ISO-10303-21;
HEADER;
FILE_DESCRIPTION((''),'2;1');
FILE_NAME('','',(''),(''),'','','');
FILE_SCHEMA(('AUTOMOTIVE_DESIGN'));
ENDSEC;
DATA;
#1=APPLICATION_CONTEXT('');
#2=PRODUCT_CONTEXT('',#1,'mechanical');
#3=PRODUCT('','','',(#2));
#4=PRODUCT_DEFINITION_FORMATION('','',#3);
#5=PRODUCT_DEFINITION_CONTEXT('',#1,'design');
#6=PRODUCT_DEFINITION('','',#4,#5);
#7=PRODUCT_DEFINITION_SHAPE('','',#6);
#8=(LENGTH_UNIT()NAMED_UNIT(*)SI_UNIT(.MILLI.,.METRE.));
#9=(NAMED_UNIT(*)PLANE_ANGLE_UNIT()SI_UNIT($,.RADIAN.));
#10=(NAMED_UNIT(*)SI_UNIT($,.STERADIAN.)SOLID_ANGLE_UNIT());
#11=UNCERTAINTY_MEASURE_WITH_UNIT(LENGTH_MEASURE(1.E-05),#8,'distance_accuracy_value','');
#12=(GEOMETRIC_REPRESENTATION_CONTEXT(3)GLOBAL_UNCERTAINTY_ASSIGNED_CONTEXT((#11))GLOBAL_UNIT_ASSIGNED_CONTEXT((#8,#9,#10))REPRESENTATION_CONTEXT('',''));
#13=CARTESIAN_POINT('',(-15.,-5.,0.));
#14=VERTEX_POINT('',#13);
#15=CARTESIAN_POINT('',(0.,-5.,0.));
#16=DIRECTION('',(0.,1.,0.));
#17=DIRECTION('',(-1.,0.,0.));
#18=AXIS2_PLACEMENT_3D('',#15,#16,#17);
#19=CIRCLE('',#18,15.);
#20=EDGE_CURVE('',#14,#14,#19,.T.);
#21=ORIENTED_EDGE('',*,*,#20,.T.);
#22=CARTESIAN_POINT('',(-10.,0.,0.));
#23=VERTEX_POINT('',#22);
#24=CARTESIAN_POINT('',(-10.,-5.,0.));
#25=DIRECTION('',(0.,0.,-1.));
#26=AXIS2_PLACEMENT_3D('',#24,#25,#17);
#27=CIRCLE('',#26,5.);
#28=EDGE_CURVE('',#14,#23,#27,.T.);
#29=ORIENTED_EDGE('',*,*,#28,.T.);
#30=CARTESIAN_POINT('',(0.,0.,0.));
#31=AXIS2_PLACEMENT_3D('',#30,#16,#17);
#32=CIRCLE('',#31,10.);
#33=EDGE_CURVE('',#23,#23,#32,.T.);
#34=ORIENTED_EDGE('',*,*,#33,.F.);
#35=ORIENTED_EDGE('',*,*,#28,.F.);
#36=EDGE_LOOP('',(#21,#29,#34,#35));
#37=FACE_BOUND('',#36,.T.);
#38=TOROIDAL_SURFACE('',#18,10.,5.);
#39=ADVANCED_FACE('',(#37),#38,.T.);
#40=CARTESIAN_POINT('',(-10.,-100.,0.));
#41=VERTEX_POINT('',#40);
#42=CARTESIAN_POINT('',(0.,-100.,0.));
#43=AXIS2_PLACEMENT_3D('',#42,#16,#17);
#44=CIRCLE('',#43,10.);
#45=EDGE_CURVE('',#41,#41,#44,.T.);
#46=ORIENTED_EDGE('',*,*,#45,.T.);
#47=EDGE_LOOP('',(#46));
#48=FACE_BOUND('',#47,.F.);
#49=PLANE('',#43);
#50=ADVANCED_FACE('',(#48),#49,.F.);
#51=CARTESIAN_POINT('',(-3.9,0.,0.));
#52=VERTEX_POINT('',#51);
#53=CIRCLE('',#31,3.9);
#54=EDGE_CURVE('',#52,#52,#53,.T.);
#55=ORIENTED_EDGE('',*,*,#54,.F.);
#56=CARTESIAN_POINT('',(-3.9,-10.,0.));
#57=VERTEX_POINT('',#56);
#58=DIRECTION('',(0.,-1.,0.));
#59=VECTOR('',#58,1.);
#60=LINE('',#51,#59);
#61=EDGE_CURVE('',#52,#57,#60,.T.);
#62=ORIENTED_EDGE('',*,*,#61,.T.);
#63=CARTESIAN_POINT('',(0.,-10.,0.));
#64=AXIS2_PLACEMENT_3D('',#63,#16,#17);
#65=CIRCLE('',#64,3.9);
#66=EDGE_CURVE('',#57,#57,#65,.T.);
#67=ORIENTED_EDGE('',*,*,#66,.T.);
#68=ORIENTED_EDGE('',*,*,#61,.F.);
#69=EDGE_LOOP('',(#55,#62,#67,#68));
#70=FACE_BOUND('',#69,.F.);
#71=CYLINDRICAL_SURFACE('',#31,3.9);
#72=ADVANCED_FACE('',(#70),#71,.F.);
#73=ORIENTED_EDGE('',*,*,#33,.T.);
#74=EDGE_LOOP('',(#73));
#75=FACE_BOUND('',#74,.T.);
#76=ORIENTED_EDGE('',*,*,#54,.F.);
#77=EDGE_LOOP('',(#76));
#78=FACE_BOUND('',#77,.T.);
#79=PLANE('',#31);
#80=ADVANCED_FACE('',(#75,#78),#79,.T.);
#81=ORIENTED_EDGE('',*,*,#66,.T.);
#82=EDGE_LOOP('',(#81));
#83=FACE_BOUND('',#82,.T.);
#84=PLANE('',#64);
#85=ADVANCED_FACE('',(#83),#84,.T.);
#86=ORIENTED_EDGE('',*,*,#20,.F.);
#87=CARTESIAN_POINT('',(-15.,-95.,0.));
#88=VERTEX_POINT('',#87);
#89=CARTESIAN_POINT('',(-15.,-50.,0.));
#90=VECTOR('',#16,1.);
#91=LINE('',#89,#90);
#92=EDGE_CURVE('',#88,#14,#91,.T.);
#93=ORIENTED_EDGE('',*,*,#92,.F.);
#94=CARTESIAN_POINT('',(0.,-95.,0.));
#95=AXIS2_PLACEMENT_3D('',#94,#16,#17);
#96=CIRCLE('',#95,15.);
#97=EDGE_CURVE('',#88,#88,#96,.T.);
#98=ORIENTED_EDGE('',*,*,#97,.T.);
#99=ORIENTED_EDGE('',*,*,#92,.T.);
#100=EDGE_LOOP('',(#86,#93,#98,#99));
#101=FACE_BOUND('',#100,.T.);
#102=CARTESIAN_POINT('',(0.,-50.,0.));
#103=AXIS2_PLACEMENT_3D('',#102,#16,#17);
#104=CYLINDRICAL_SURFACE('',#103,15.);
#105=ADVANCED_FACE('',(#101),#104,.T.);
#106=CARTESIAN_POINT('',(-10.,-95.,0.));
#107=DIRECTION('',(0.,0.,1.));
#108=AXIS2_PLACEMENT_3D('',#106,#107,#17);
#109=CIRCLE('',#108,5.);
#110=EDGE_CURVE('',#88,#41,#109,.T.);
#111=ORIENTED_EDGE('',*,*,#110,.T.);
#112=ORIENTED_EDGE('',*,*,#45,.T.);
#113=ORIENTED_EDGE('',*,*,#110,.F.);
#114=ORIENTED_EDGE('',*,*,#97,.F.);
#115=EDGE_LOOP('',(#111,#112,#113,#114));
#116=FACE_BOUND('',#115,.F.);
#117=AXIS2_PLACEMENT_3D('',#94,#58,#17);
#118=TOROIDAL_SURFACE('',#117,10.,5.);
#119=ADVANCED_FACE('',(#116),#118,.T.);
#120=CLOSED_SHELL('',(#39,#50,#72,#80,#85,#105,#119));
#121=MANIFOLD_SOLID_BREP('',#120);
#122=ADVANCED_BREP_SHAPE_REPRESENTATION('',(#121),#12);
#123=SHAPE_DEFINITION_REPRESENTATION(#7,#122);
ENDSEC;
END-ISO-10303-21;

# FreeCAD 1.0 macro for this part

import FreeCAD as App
import Part
import Sketcher
from FreeCAD import Vector


def edges_at(feature, points):
    """Names of the edges that pass closest to the given points."""
    edges = feature.Shape.Edges
    near = lambda p: min(range(len(edges)), key=lambda i: edges[i].distToShape(Part.Vertex(*p))[0])
    return sorted({f"Edge{near(p) + 1}" for p in points})

doc = App.newDocument("Part")
params = doc.addObject("Spreadsheet::Sheet", "Params")
for row, (alias, value) in enumerate([
    ("sketch1_width", "15 mm"),
    ("sketch1_height", "100 mm"),
    ("revolution_angle", "360 deg"),
    ("sketch2_diameter", "7.8 mm"),
    ("pocket1_length", "10 mm"),
    ("fillet_radius", "5 mm"),
], start=1):
    params.set(f"A{row}", alias)
    params.set(f"B{row}", "=" + value)
    params.setAlias(f"B{row}", alias)

body = doc.addObject("PartDesign::Body", "Body")

sketch1 = doc.addObject("Sketcher::SketchObject", "Sketch")
body.addObject(sketch1)
sketch1.AttachmentSupport = (doc.XY_Plane, [""])
sketch1.MapMode = "FlatFace"
sketch1.addGeometry([
    Part.LineSegment(Vector(-15, 0, 0), Vector(-15, -100, 0)),
    Part.LineSegment(Vector(-15, -100, 0), Vector(0, -100, 0)),
    Part.LineSegment(Vector(0, -100, 0), Vector(0, 0, 0)),
    Part.LineSegment(Vector(0, 0, 0), Vector(-15, 0, 0)),
], False)
sketch1.addConstraint([
    Sketcher.Constraint("Coincident", 0, 2, 1, 1),
    Sketcher.Constraint("Coincident", 1, 2, 2, 1),
    Sketcher.Constraint("Coincident", 2, 2, 3, 1),
    Sketcher.Constraint("Coincident", 3, 2, 0, 1),
    Sketcher.Constraint("Vertical", 0),
    Sketcher.Constraint("Horizontal", 1),
    Sketcher.Constraint("Vertical", 2),
    Sketcher.Constraint("Horizontal", 3),
    Sketcher.Constraint("Coincident", 2, 2, -1, 1),
    Sketcher.Constraint("DistanceX", 1, 1, 1, 2, 15.0),
    Sketcher.Constraint("DistanceY", 0, 2, 0, 1, 100.0),
])
sketch1.setExpression("Constraints[9]", "Params.sketch1_width")
sketch1.setExpression("Constraints[10]", "Params.sketch1_height")
revolution = doc.addObject("PartDesign::Revolution", "Revolution")
body.addObject(revolution)
revolution.Profile = sketch1
revolution.ReferenceAxis = (sketch1, ["V_Axis"])
revolution.setExpression("Angle", "Params.revolution_angle")

sketch2 = doc.addObject("Sketcher::SketchObject", "Sketch001")
body.addObject(sketch2)
sketch2.AttachmentSupport = (doc.XZ_Plane, [""])
sketch2.MapMode = "FlatFace"
sketch2.addGeometry(Part.Circle(Vector(0, 0, 0), Vector(0, 0, 1), 3.9), False)
sketch2.addConstraint([
    Sketcher.Constraint("Coincident", 0, 3, -1, 1),
    Sketcher.Constraint("Diameter", 0, 7.8),
])
sketch2.setExpression("Constraints[1]", "Params.sketch2_diameter")
pocket1 = doc.addObject("PartDesign::Pocket", "Pocket")
body.addObject(pocket1)
pocket1.Profile = sketch2
pocket1.setExpression("Length", "Params.pocket1_length")
pocket1.Reversed = True
doc.recompute()

fillet = doc.addObject("PartDesign::Fillet", "Fillet")
body.addObject(fillet)
fillet.Base = (pocket1, edges_at(pocket1, [(15, 0, 0), (15, -100, 0)]))
fillet.setExpression("Radius", "Params.fillet_radius")

doc.recompute()
